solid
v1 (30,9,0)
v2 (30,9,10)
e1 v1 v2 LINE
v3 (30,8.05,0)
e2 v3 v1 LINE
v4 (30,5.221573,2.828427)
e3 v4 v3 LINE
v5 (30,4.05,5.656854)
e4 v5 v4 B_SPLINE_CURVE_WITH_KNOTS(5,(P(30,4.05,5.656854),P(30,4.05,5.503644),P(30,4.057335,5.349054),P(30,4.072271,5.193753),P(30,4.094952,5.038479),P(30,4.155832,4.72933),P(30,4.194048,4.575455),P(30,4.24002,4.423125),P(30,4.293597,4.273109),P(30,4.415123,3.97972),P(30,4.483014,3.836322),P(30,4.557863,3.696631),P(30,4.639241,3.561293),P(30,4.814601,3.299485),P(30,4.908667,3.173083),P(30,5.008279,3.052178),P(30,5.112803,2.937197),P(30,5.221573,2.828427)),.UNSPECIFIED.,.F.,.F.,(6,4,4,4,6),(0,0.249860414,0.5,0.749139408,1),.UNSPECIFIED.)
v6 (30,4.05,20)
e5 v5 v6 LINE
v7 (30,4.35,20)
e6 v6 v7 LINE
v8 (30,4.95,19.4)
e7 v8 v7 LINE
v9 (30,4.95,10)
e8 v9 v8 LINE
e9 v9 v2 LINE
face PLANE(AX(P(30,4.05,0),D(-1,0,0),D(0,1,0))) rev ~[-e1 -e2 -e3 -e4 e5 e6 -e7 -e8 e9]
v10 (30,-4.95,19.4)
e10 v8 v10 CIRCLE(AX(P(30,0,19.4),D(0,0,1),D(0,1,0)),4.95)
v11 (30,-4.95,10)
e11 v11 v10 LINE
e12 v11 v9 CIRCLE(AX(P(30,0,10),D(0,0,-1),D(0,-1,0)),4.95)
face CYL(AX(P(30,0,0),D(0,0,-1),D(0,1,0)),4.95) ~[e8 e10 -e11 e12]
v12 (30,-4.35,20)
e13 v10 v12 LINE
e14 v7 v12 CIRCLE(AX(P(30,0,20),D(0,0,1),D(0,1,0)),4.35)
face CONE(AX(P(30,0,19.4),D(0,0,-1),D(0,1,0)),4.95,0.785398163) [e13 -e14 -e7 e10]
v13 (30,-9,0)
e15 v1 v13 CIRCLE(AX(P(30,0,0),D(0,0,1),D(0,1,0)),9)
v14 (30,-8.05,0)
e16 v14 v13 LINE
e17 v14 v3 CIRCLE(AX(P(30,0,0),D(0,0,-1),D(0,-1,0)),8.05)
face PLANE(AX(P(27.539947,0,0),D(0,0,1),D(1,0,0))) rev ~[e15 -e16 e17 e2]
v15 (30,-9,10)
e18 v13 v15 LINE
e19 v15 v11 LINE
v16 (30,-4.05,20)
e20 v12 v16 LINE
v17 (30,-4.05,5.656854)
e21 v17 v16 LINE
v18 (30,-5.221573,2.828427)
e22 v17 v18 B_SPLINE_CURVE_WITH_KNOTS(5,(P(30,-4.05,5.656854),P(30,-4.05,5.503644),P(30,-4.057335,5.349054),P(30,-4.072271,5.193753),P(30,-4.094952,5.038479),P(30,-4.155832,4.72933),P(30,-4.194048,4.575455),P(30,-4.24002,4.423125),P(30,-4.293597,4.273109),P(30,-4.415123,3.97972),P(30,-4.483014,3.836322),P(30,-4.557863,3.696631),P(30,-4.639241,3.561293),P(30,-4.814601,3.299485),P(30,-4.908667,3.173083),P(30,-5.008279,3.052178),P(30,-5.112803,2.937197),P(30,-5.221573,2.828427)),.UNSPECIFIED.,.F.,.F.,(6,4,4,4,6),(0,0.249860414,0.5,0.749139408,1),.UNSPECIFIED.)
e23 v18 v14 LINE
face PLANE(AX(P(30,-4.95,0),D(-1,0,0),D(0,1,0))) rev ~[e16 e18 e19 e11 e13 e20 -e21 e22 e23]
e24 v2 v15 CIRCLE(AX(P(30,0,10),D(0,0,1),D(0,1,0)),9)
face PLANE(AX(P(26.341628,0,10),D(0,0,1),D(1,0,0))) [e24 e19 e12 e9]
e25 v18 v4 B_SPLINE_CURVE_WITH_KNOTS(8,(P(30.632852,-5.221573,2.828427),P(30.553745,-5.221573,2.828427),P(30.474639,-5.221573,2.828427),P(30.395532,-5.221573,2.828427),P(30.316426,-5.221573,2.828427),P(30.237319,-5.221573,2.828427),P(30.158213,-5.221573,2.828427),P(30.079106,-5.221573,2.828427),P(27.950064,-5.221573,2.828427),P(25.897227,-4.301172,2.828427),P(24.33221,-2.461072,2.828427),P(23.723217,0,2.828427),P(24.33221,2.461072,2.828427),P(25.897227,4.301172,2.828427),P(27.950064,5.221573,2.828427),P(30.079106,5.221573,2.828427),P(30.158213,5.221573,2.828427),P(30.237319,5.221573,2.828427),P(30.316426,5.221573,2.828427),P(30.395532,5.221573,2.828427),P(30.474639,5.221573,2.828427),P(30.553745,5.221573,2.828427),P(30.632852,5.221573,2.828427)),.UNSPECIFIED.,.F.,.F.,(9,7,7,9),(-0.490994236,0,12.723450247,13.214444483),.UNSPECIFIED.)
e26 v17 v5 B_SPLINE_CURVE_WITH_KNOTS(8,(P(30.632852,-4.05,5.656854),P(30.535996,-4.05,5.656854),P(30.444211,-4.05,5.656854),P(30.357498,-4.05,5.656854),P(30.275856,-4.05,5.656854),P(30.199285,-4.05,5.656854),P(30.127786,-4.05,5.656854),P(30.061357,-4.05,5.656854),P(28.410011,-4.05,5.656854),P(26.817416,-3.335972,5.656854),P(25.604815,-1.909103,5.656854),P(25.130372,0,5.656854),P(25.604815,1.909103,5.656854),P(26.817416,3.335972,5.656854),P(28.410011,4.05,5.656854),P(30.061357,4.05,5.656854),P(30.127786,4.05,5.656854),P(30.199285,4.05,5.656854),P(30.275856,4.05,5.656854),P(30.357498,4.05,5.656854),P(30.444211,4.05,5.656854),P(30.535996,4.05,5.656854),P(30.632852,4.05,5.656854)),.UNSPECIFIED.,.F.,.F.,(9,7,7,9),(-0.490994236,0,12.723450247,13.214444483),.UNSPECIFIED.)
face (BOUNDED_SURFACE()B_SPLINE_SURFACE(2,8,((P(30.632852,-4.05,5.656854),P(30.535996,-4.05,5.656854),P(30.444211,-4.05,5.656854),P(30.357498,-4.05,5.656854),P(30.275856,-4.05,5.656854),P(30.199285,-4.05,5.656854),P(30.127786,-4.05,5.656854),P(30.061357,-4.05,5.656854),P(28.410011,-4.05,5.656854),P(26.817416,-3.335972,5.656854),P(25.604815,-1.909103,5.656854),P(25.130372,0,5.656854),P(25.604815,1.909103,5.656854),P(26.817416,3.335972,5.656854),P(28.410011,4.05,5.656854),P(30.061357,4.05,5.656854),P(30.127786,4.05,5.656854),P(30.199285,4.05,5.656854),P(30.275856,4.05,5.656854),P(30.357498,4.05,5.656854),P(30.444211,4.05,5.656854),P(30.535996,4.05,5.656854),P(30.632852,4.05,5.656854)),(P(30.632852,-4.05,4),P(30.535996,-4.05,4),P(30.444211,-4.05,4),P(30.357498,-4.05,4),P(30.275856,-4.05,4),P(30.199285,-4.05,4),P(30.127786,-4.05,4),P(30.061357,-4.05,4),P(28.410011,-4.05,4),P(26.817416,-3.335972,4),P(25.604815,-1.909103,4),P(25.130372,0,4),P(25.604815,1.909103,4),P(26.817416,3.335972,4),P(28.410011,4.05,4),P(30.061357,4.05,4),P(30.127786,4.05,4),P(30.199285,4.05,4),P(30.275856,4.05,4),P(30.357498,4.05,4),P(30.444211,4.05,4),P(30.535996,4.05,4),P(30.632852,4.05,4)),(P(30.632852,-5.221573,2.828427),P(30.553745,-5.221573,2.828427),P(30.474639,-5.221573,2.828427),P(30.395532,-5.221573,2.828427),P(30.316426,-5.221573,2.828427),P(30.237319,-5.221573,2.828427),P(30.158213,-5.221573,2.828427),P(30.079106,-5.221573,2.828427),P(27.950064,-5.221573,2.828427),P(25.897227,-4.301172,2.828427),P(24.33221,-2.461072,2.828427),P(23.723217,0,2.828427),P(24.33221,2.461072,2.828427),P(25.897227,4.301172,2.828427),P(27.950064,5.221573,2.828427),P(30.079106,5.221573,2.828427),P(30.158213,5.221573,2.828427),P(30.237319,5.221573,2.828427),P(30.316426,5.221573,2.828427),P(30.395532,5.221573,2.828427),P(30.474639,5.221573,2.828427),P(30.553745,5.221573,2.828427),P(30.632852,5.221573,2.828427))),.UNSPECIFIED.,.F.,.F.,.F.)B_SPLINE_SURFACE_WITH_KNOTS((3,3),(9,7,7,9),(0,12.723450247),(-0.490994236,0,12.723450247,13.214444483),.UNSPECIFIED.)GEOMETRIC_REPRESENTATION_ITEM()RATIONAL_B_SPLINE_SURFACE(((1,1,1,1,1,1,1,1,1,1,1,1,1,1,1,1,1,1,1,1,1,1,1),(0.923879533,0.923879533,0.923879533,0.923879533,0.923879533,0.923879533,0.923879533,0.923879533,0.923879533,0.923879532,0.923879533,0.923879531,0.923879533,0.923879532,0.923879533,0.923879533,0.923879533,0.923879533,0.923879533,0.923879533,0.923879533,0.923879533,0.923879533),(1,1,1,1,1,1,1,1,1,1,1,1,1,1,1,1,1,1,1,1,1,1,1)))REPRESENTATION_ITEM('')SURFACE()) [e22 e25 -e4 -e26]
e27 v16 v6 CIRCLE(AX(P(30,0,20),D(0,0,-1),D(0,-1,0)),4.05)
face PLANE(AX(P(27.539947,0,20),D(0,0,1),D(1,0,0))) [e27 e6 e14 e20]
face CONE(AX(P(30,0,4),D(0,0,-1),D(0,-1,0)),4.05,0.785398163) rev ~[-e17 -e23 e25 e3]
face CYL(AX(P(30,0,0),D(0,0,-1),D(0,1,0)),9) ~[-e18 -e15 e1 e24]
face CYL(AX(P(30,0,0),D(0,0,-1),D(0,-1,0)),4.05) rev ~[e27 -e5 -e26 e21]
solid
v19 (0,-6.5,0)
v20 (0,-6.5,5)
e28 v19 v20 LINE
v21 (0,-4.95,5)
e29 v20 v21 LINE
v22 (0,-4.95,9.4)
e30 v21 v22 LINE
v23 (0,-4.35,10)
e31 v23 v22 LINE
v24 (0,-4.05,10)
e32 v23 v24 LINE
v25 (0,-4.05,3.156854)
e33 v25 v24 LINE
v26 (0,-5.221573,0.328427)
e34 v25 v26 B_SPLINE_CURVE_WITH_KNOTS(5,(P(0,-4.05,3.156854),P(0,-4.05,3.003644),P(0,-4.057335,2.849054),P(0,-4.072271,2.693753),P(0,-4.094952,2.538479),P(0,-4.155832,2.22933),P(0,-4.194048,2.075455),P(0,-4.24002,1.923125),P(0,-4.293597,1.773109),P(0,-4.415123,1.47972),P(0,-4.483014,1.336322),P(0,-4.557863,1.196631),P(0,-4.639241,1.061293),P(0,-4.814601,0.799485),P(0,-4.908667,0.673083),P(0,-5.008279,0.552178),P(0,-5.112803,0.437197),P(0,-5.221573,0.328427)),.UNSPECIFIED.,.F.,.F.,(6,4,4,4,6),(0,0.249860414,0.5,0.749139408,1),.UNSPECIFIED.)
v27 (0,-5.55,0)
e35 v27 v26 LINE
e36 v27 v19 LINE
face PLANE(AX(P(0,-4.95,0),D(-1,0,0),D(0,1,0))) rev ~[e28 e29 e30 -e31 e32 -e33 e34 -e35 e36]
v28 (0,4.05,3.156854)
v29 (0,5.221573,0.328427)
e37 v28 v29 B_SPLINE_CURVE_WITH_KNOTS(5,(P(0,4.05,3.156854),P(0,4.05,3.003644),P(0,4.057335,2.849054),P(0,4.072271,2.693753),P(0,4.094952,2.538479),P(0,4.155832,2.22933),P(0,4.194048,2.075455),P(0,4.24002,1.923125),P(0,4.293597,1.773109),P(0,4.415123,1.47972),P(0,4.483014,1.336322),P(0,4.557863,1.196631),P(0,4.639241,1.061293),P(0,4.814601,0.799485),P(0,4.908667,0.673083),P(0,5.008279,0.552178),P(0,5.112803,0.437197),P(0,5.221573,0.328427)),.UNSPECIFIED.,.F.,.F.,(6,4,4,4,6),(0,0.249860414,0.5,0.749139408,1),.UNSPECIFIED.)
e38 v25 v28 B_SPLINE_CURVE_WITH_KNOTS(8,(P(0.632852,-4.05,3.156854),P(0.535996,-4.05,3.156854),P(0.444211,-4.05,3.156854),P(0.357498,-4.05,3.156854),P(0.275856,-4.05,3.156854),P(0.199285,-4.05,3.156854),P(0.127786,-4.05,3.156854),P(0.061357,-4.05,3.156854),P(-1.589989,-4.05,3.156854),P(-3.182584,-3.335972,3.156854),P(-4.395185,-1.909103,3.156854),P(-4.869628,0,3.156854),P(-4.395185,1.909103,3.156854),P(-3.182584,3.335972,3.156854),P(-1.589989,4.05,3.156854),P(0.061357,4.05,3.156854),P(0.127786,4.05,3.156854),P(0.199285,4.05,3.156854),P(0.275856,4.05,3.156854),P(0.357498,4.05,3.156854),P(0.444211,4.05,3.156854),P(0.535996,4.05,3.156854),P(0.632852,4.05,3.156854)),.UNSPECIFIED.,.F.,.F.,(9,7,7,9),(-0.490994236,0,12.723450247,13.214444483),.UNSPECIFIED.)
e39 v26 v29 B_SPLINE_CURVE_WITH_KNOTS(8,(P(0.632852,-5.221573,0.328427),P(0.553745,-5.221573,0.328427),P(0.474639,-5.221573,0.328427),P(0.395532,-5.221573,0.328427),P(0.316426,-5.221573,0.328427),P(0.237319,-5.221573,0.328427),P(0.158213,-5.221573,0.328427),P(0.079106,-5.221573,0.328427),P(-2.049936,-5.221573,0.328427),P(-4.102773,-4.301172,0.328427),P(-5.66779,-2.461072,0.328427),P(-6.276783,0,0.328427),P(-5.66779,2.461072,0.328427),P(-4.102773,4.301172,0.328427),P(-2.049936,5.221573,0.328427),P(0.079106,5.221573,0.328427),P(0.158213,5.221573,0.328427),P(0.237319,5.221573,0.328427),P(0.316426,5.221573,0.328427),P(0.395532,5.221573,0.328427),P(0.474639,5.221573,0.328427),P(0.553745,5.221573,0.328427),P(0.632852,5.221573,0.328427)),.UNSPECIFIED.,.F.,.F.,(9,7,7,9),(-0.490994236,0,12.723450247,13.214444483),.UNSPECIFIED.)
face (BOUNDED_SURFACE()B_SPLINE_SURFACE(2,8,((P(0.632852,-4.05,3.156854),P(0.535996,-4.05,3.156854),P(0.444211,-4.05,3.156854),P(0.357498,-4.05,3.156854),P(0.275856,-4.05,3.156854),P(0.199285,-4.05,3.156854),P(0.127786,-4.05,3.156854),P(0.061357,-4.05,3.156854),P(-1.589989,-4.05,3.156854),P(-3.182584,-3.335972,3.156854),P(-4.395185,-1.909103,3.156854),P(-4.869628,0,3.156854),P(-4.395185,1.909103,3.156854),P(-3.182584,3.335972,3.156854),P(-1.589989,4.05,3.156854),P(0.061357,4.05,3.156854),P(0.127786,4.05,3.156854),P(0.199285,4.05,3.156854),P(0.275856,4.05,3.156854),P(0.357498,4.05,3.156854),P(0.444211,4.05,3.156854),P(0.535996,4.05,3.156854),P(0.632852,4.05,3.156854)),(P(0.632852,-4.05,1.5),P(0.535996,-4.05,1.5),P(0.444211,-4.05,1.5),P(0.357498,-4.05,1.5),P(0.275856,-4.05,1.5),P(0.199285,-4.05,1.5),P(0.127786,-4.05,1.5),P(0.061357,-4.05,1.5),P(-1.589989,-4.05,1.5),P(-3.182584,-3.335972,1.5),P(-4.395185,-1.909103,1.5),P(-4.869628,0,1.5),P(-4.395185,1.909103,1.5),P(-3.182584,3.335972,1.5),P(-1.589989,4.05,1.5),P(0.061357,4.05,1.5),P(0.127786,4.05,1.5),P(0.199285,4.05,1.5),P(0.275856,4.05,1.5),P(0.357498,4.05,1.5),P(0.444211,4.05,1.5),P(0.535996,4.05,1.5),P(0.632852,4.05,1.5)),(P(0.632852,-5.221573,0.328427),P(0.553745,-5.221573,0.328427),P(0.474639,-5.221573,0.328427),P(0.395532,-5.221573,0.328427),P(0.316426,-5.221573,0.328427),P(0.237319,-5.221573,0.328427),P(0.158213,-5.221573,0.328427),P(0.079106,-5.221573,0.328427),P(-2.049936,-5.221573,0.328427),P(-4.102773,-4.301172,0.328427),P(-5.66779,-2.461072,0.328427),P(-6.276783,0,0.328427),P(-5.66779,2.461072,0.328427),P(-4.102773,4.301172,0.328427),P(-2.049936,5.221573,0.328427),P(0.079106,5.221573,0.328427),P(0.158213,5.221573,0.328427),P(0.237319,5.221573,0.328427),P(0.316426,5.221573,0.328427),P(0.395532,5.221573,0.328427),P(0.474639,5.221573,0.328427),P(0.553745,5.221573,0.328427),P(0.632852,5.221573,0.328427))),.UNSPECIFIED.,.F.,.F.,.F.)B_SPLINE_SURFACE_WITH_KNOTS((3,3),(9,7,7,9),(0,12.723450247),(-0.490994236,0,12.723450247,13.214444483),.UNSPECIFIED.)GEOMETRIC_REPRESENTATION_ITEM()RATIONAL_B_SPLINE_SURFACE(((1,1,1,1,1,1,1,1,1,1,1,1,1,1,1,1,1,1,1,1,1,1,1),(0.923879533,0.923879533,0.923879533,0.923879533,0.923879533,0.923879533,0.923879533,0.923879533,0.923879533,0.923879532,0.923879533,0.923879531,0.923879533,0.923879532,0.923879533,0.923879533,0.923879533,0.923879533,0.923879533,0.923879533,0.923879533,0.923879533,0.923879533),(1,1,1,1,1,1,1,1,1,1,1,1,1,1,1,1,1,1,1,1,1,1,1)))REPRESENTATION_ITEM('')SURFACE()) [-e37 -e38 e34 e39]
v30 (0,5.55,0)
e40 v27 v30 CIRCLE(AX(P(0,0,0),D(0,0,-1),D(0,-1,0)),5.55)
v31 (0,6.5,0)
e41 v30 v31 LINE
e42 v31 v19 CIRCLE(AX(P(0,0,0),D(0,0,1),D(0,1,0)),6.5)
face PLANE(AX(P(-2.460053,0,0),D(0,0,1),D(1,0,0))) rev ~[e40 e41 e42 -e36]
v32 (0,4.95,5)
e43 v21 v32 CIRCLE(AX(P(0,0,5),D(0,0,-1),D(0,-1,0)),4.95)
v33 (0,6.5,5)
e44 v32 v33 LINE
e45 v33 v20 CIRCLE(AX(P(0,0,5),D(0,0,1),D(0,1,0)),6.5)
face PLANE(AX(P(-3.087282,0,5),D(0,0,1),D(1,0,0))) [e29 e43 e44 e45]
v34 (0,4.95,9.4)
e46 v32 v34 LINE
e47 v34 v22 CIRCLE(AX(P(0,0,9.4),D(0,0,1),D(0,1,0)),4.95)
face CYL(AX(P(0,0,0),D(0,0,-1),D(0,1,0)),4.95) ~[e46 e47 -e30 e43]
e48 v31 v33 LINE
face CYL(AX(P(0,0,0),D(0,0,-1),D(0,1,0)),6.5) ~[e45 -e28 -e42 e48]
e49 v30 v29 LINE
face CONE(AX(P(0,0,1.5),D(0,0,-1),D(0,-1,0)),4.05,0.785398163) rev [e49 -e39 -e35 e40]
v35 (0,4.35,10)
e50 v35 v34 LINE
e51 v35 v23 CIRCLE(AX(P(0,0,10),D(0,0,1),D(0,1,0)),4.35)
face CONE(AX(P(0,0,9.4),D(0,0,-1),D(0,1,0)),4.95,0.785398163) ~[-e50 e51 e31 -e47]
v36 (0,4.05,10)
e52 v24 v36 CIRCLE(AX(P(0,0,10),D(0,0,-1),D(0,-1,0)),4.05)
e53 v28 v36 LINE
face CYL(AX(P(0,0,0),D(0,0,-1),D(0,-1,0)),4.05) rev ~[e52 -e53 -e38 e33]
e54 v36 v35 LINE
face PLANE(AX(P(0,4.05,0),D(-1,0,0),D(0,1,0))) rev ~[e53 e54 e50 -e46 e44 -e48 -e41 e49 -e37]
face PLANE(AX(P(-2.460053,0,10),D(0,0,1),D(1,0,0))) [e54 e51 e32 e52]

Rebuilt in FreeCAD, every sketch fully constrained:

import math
import FreeCAD as App
import Part
import Sketcher
from FreeCAD import Vector


def edges_at(feature, points):
    """Names of the edges that pass closest to the given points."""
    edges = feature.Shape.Edges
    near = lambda p: min(range(len(edges)), key=lambda i: edges[i].distToShape(Part.Vertex(*p))[0])
    return sorted({f"Edge{near(p) + 1}" for p in points})

doc = App.newDocument("Part")
body = doc.addObject("PartDesign::Body", "Body")

# Sketch on XY plane
sketch1 = doc.addObject("Sketcher::SketchObject", "Sketch")
body.addObject(sketch1)
sketch1.AttachmentSupport = (doc.XY_Plane, [""])
sketch1.MapMode = "FlatFace"
sketch1.addGeometry([
    Part.LineSegment(Vector(0, 5, 0), Vector(0, 6.5, 0)),
    Part.ArcOfCircle(Part.Circle(Vector(0, 0, 0), Vector(0, 0, 1), 6.5), math.radians(90), math.radians(270)),
    Part.LineSegment(Vector(0, -6.5, 0), Vector(0, -5, 0)),
    Part.ArcOfCircle(Part.Circle(Vector(0, 0, 0), Vector(0, 0, 1), 5), math.radians(90), math.radians(270)),
], False)
sketch1.addConstraint([
    Sketcher.Constraint("Coincident", 0, 2, 1, 1),
    Sketcher.Constraint("Coincident", 1, 2, 2, 1),
    Sketcher.Constraint("Coincident", 2, 2, 3, 2),
    Sketcher.Constraint("Coincident", 3, 1, 0, 1),
    Sketcher.Constraint("Vertical", 0),
    Sketcher.Constraint("Vertical", 2),
    Sketcher.Constraint("Coincident", 1, 3, -1, 1),
    Sketcher.Constraint("Coincident", 3, 3, -1, 1),
    Sketcher.Constraint("PointOnObject", 0, 2, -2),
    Sketcher.Constraint("PointOnObject", 1, 2, -2),
    Sketcher.Constraint("Radius", 1, 6.5),
    Sketcher.Constraint("Radius", 3, 4.95),
])
pad1 = doc.addObject("PartDesign::Pad", "Pad")
body.addObject(pad1)
pad1.Profile = sketch1
pad1.Length = 5

# Sketch on XY plane
sketch2 = doc.addObject("Sketcher::SketchObject", "Sketch001")
body.addObject(sketch2)
sketch2.AttachmentSupport = (doc.XY_Plane, [""])
sketch2.MapMode = "FlatFace"
sketch2.addGeometry([
    Part.LineSegment(Vector(0, 4, 0), Vector(0, 5, 0)),
    Part.ArcOfCircle(Part.Circle(Vector(0, 0, 0), Vector(0, 0, 1), 5), math.radians(90), math.radians(270)),
    Part.LineSegment(Vector(0, -5, 0), Vector(0, -4, 0)),
    Part.ArcOfCircle(Part.Circle(Vector(0, 0, 0), Vector(0, 0, 1), 4), math.radians(90), math.radians(270)),
], False)
sketch2.addConstraint([
    Sketcher.Constraint("Coincident", 0, 2, 1, 1),
    Sketcher.Constraint("Coincident", 1, 2, 2, 1),
    Sketcher.Constraint("Coincident", 2, 2, 3, 2),
    Sketcher.Constraint("Coincident", 3, 1, 0, 1),
    Sketcher.Constraint("Vertical", 0),
    Sketcher.Constraint("Vertical", 2),
    Sketcher.Constraint("Coincident", 1, 3, -1, 1),
    Sketcher.Constraint("Coincident", 3, 3, -1, 1),
    Sketcher.Constraint("PointOnObject", 0, 2, -2),
    Sketcher.Constraint("PointOnObject", 1, 2, -2),
    Sketcher.Constraint("Radius", 1, 4.95),
    Sketcher.Constraint("Radius", 3, 4.05),
])
pad2 = doc.addObject("PartDesign::Pad", "Pad001")
body.addObject(pad2)
pad2.Profile = sketch2
pad2.Length = 10
doc.recompute()

chamfer = doc.addObject("PartDesign::Chamfer", "Chamfer")
body.addObject(chamfer)
chamfer.Base = (pad2, edges_at(pad2, [(-4.05, 0, 0)]))
chamfer.Size = 1.5
doc.recompute()

chamfer2 = doc.addObject("PartDesign::Chamfer", "Chamfer001")
body.addObject(chamfer2)
chamfer2.Base = (chamfer, edges_at(chamfer, [(-4.95, 0, 10)]))
chamfer2.Size = 0.6
doc.recompute()

fillet = doc.addObject("PartDesign::Fillet", "Fillet")
body.addObject(fillet)
fillet.Base = (chamfer2, edges_at(chamfer2, [(-4.05, 0, 1.5)]))
fillet.Radius = 4
body2 = doc.addObject("PartDesign::Body", "Body001")

# Sketch on XY plane
sketch3 = doc.addObject("Sketcher::SketchObject", "Sketch002")
body2.addObject(sketch3)
sketch3.AttachmentSupport = (doc.getObject("XY_Plane001"), [""])
sketch3.MapMode = "FlatFace"
sketch3.addGeometry([
    Part.LineSegment(Vector(30, 5, 0), Vector(30, 9, 0)),
    Part.ArcOfCircle(Part.Circle(Vector(30, 0, 0), Vector(0, 0, 1), 9), math.radians(90), math.radians(270)),
    Part.LineSegment(Vector(30, -9, 0), Vector(30, -5, 0)),
    Part.ArcOfCircle(Part.Circle(Vector(30, 0, 0), Vector(0, 0, 1), 5), math.radians(90), math.radians(270)),
], False)
sketch3.addConstraint([
    Sketcher.Constraint("Coincident", 0, 2, 1, 1),
    Sketcher.Constraint("Coincident", 1, 2, 2, 1),
    Sketcher.Constraint("Coincident", 2, 2, 3, 2),
    Sketcher.Constraint("Coincident", 3, 1, 0, 1),
    Sketcher.Constraint("Vertical", 0),
    Sketcher.Constraint("Vertical", 2),
    Sketcher.Constraint("Coincident", 3, 3, 1, 3),
    Sketcher.Constraint("Symmetric", 0, 2, 1, 2, -1),
    Sketcher.Constraint("Vertical", 3, 3, 0, 2),
    Sketcher.Constraint("Radius", 1, 9.0),
    Sketcher.Constraint("Radius", 3, 4.95),
    Sketcher.Constraint("DistanceX", -1, 1, 1, 3, 30.0),
])
pad3 = doc.addObject("PartDesign::Pad", "Pad002")
body2.addObject(pad3)
pad3.Profile = sketch3
pad3.Length = 10

# Sketch on XY plane
sketch4 = doc.addObject("Sketcher::SketchObject", "Sketch003")
body2.addObject(sketch4)
sketch4.AttachmentSupport = (doc.getObject("XY_Plane001"), [""])
sketch4.MapMode = "FlatFace"
sketch4.addGeometry([
    Part.LineSegment(Vector(30, 4, 0), Vector(30, 5, 0)),
    Part.ArcOfCircle(Part.Circle(Vector(30, 0, 0), Vector(0, 0, 1), 5), math.radians(90), math.radians(270)),
    Part.LineSegment(Vector(30, -5, 0), Vector(30, -4, 0)),
    Part.ArcOfCircle(Part.Circle(Vector(30, 0, 0), Vector(0, 0, 1), 4), math.radians(90), math.radians(270)),
], False)
sketch4.addConstraint([
    Sketcher.Constraint("Coincident", 0, 2, 1, 1),
    Sketcher.Constraint("Coincident", 1, 2, 2, 1),
    Sketcher.Constraint("Coincident", 2, 2, 3, 2),
    Sketcher.Constraint("Coincident", 3, 1, 0, 1),
    Sketcher.Constraint("Vertical", 0),
    Sketcher.Constraint("Vertical", 2),
    Sketcher.Constraint("Coincident", 3, 3, 1, 3),
    Sketcher.Constraint("Symmetric", 0, 2, 1, 2, -1),
    Sketcher.Constraint("Vertical", 3, 3, 0, 2),
    Sketcher.Constraint("Radius", 1, 4.95),
    Sketcher.Constraint("Radius", 3, 4.05),
    Sketcher.Constraint("DistanceX", -1, 1, 1, 3, 30.0),
])
pad4 = doc.addObject("PartDesign::Pad", "Pad003")
body2.addObject(pad4)
pad4.Profile = sketch4
pad4.Length = 20
doc.recompute()

chamfer3 = doc.addObject("PartDesign::Chamfer", "Chamfer002")
body2.addObject(chamfer3)
chamfer3.Base = (pad4, edges_at(pad4, [(25.05, 0, 20)]))
chamfer3.Size = 0.6
doc.recompute()

chamfer4 = doc.addObject("PartDesign::Chamfer", "Chamfer003")
body2.addObject(chamfer4)
chamfer4.Base = (chamfer3, edges_at(chamfer3, [(25.95, 0, 0)]))
chamfer4.Size = 4
doc.recompute()

fillet2 = doc.addObject("PartDesign::Fillet", "Fillet001")
body2.addObject(fillet2)
fillet2.Base = (chamfer4, edges_at(chamfer4, [(25.95, 0, 4)]))
fillet2.Radius = 4

doc.recompute()
